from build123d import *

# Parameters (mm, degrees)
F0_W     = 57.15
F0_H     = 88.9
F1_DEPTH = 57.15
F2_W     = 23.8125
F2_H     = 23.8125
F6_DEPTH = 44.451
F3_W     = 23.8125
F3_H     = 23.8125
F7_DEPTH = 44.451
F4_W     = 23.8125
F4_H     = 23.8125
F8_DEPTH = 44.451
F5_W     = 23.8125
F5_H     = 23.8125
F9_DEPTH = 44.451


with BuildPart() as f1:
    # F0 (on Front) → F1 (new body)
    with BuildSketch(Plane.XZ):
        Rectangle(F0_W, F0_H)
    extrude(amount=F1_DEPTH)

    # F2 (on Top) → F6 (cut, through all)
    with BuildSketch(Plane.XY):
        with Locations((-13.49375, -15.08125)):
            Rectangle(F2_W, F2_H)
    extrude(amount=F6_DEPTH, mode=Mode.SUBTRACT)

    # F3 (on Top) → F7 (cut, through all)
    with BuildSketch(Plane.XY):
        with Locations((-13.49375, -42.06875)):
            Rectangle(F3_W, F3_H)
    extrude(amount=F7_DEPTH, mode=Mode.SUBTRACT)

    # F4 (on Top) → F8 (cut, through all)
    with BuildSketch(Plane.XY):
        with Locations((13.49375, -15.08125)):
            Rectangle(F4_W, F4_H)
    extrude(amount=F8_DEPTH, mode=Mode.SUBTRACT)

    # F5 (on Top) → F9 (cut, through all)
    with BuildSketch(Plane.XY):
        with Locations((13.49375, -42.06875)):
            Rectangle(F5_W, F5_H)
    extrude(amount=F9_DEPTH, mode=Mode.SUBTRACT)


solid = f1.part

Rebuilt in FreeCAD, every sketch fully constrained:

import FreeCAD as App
import Part
import Sketcher
from FreeCAD import Vector
Q = App.Units.Quantity


def add_polygon(sketch, points):
    """Adds a closed chain of lines whose ends are joined by coincident constraints."""
    first, n = sketch.GeometryCount, len(points)
    for a, b in zip(points, points[1:] + points[:1]):
        sketch.addGeometry(Part.LineSegment(App.Vector(*a, 0), App.Vector(*b, 0)), False)
    for i in range(n):
        sketch.addConstraint(Sketcher.Constraint("Coincident", first + i, 2, first + (i + 1) % n, 1))

doc = App.newDocument("Part")
body = doc.addObject("PartDesign::Body", "Body")

# Sketch on XZ plane
sketch1 = body.newObject("Sketcher::SketchObject", "Sketch")
sketch1.AttachmentSupport = (doc.getObject("XZ_Plane"), [""])
sketch1.MapMode = "FlatFace"
add_polygon(sketch1, [(-29, 44), (-29, -44), (29, -44), (29, 44)])  # lines 0-3
sketch1.addConstraint([
    Sketcher.Constraint("Vertical", 0),
    Sketcher.Constraint("Horizontal", 1),
    Sketcher.Constraint("Vertical", 2),
    Sketcher.Constraint("Horizontal", 3),
    Sketcher.Constraint("Symmetric", 0, 2, 2, 2, -1, 1),
    Sketcher.Constraint("DistanceY", 0, 2, 0, 1, Q("3.5 in")),
    Sketcher.Constraint("DistanceX", 1, 1, 1, 2, Q("2.25 in")),
])
pad1 = body.newObject("PartDesign::Pad", "Pad")
pad1.Profile = sketch1
pad1.Length = Q("2.25 in")

# Sketch on XY plane
sketch2 = body.newObject("Sketcher::SketchObject", "Sketch001")
sketch2.AttachmentSupport = (doc.getObject("XY_Plane"), [""])
sketch2.MapMode = "FlatFace"
add_polygon(sketch2, [(-25, -3), (-25, -27), (-2, -27), (-2, -3)])  # lines 0-3
sketch2.addConstraint([
    Sketcher.Constraint("Vertical", 0),
    Sketcher.Constraint("Horizontal", 1),
    Sketcher.Constraint("Vertical", 2),
    Sketcher.Constraint("Horizontal", 3),
    Sketcher.Constraint("Equal", 3, 0),
    Sketcher.Constraint("DistanceX", 0, 2, -1, 1, Q("1 in")),
    Sketcher.Constraint("DistanceX", 1, 1, 1, 2, Q("0.9375 in")),
    Sketcher.Constraint("DistanceY", 0, 2, -1, 1, Q("1.0625 in")),
])
pocket1 = body.newObject("PartDesign::Pocket", "Pocket")
pocket1.Profile = sketch2
pocket1.Type = "ThroughAll"
pocket1.Reversed = True

# Sketch on XY plane
sketch3 = body.newObject("Sketcher::SketchObject", "Sketch002")
sketch3.AttachmentSupport = (doc.getObject("XY_Plane"), [""])
sketch3.MapMode = "FlatFace"
add_polygon(sketch3, [(-25, -30), (-25, -54), (-2, -54), (-2, -30)])  # lines 0-3
sketch3.addConstraint([
    Sketcher.Constraint("Vertical", 0),
    Sketcher.Constraint("Horizontal", 1),
    Sketcher.Constraint("Vertical", 2),
    Sketcher.Constraint("Horizontal", 3),
    Sketcher.Constraint("Equal", 3, 0),
    Sketcher.Constraint("DistanceX", 0, 2, -1, 1, Q("1 in")),
    Sketcher.Constraint("DistanceX", 1, 1, 1, 2, Q("0.9375 in")),
    Sketcher.Constraint("DistanceY", 0, 2, -1, 1, Q("2.125 in")),
])
pocket2 = body.newObject("PartDesign::Pocket", "Pocket001")
pocket2.Profile = sketch3
pocket2.Type = "ThroughAll"
pocket2.Reversed = True

# Sketch on XY plane
sketch4 = body.newObject("Sketcher::SketchObject", "Sketch003")
sketch4.AttachmentSupport = (doc.getObject("XY_Plane"), [""])
sketch4.MapMode = "FlatFace"
add_polygon(sketch4, [(2, -3), (2, -27), (25, -27), (25, -3)])  # lines 0-3
sketch4.addConstraint([
    Sketcher.Constraint("Vertical", 0),
    Sketcher.Constraint("Horizontal", 1),
    Sketcher.Constraint("Vertical", 2),
    Sketcher.Constraint("Horizontal", 3),
    Sketcher.Constraint("Equal", 3, 0),
    Sketcher.Constraint("DistanceX", -1, 1, 1, 2, Q("1 in")),
    Sketcher.Constraint("DistanceX", 1, 1, 1, 2, Q("0.9375 in")),
    Sketcher.Constraint("DistanceY", 0, 2, -1, 1, Q("1.0625 in")),
])
pocket3 = body.newObject("PartDesign::Pocket", "Pocket002")
pocket3.Profile = sketch4
pocket3.Type = "ThroughAll"
pocket3.Reversed = True

# Sketch on XY plane
sketch5 = body.newObject("Sketcher::SketchObject", "Sketch004")
sketch5.AttachmentSupport = (doc.getObject("XY_Plane"), [""])
sketch5.MapMode = "FlatFace"
add_polygon(sketch5, [(2, -30), (2, -54), (25, -54), (25, -30)])  # lines 0-3
sketch5.addConstraint([
    Sketcher.Constraint("Vertical", 0),
    Sketcher.Constraint("Horizontal", 1),
    Sketcher.Constraint("Vertical", 2),
    Sketcher.Constraint("Horizontal", 3),
    Sketcher.Constraint("Equal", 3, 0),
    Sketcher.Constraint("DistanceX", -1, 1, 1, 2, Q("1 in")),
    Sketcher.Constraint("DistanceX", 1, 1, 1, 2, Q("0.9375 in")),
    Sketcher.Constraint("DistanceY", 0, 2, -1, 1, Q("2.125 in")),
])
pocket4 = body.newObject("PartDesign::Pocket", "Pocket003")
pocket4.Profile = sketch5
pocket4.Type = "ThroughAll"
pocket4.Reversed = True

doc.recompute()
